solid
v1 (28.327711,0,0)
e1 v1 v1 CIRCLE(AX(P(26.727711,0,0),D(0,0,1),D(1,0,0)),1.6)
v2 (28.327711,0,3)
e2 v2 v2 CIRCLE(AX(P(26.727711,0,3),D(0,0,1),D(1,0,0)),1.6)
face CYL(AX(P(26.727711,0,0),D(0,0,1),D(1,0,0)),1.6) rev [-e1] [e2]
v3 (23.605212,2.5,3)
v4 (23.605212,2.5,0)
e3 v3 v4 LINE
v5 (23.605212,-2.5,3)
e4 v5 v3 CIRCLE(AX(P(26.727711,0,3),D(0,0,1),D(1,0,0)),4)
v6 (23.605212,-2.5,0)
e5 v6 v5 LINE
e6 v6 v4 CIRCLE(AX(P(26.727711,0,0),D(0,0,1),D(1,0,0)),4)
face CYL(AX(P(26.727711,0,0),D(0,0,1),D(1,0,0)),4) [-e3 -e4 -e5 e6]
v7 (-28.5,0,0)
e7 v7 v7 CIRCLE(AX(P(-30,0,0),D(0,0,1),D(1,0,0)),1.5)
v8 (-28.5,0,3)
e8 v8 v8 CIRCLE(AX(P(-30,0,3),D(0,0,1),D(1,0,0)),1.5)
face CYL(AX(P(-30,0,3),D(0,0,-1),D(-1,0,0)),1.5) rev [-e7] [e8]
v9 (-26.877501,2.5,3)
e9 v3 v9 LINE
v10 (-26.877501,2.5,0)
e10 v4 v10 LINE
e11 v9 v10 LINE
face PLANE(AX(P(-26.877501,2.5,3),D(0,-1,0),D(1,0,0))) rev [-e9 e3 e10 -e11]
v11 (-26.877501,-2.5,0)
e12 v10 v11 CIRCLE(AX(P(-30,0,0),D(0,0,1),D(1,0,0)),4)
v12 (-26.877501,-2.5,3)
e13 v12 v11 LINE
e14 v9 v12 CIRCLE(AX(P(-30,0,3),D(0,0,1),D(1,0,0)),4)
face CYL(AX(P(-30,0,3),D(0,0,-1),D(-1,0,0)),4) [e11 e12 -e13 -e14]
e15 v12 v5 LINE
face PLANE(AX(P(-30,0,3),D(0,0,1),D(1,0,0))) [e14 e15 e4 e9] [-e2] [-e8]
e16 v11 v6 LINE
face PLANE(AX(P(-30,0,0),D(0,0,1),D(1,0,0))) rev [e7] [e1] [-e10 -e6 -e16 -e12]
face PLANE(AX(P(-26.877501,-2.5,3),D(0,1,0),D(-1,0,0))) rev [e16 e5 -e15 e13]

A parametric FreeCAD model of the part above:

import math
import FreeCAD as App
import Part
import Sketcher
from FreeCAD import Vector

doc = App.newDocument("Part")
body = doc.addObject("PartDesign::Body", "Body")

# Sketch on XY plane
sketch1 = body.newObject("Sketcher::SketchObject", "Sketch")
sketch1.AttachmentSupport = (doc.getObject("XY_Plane"), [""])
sketch1.MapMode = "FlatFace"
sketch1.addGeometry(Part.LineSegment(Vector(-26.9, -2.5, 0), Vector(30, -2.5, 0)), False)
sketch1.addGeometry(Part.LineSegment(Vector(30, -2.5, 0), Vector(30, 2.5, 0)), False)
sketch1.addGeometry(Part.LineSegment(Vector(30, 2.5, 0), Vector(-26.9, 2.5, 0)), False)
sketch1.addGeometry(Part.ArcOfCircle(Part.Circle(Vector(-30, 0, 0), Vector(0, 0, 1), 4), math.radians(39), math.radians(321)), False)
sketch1.addGeometry(Part.Circle(Vector(-30, 0, 0), Vector(0, 0, 1), 1.5), False)
sketch1.addConstraint(Sketcher.Constraint("Coincident", 0, 2, 1, 1))
sketch1.addConstraint(Sketcher.Constraint("Coincident", 1, 2, 2, 1))
sketch1.addConstraint(Sketcher.Constraint("Coincident", 2, 2, 3, 1))
sketch1.addConstraint(Sketcher.Constraint("Coincident", 3, 2, 0, 1))
sketch1.addConstraint(Sketcher.Constraint("Horizontal", 0))
sketch1.addConstraint(Sketcher.Constraint("Vertical", 1))
sketch1.addConstraint(Sketcher.Constraint("Horizontal", 2))
sketch1.addConstraint(Sketcher.Constraint("Coincident", 4, 3, 3, 3))
sketch1.addConstraint(Sketcher.Constraint("Symmetric", 2, 2, 3, 2, -1))
sketch1.addConstraint(Sketcher.Constraint("Diameter", 4, 3.0))
sketch1.addConstraint(Sketcher.Constraint("Radius", 3, 4.0))
sketch1.addConstraint(Sketcher.Constraint("DistanceY", 1, 1, 1, 2, 5.0))
sketch1.addConstraint(Sketcher.Constraint("DistanceX", 3, 3, -1, 1, 30.0))
sketch1.addConstraint(Sketcher.Constraint("DistanceX", -1, 1, 0, 2, 30.0))
pad1 = body.newObject("PartDesign::Pad", "Pad")
pad1.Profile = sketch1
pad1.Length = 3

# Sketch on XY plane
sketch2 = body.newObject("Sketcher::SketchObject", "Sketch001")
sketch2.AttachmentSupport = (doc.getObject("XY_Plane"), [""])
sketch2.MapMode = "FlatFace"
sketch2.AttachmentOffset = App.Placement(Vector(0, 0, 3), App.Rotation())
sketch2.addGeometry(Part.Circle(Vector(26.7, 0, 0), Vector(0, 0, 1), 1.6), False)
sketch2.addConstraint(Sketcher.Constraint("PointOnObject", 0, 3, -1))
sketch2.addConstraint(Sketcher.Constraint("Diameter", 0, 3.2))
sketch2.addConstraint(Sketcher.Constraint("DistanceX", -1, 1, 0, 3, 26.727711))
pocket1 = body.newObject("PartDesign::Pocket", "Pocket")
pocket1.Profile = sketch2
pocket1.Length = 3

# Sketch on XY plane
sketch3 = body.newObject("Sketcher::SketchObject", "Sketch002")
sketch3.AttachmentSupport = (doc.getObject("XY_Plane"), [""])
sketch3.MapMode = "FlatFace"
sketch3.AttachmentOffset = App.Placement(Vector(0, 0, 3), App.Rotation())
sketch3.addGeometry(Part.Circle(Vector(26.7, 0, 0), Vector(0, 0, 1), 4), False)
sketch3.addGeometry(Part.Circle(Vector(26.7, 0, 0), Vector(0, 0, 1), 1.6), False)
sketch3.addConstraint(Sketcher.Constraint("Coincident", 1, 3, 0, 3))
sketch3.addConstraint(Sketcher.Constraint("PointOnObject", 0, 3, -1))
sketch3.addConstraint(Sketcher.Constraint("Diameter", 0, 8.0))
sketch3.addConstraint(Sketcher.Constraint("Diameter", 1, 3.2))
sketch3.addConstraint(Sketcher.Constraint("DistanceX", -1, 1, 0, 3, 26.727711))
pad2 = body.newObject("PartDesign::Pad", "Pad001")
pad2.Profile = sketch3
pad2.Length = 3
pad2.Reversed = True

# Sketch on XY plane
sketch4 = body.newObject("Sketcher::SketchObject", "Sketch003")
sketch4.AttachmentSupport = (doc.getObject("XY_Plane"), [""])
sketch4.MapMode = "FlatFace"
sketch4.AttachmentOffset = App.Placement(Vector(0, 0, 3), App.Rotation())
sketch4.addGeometry(Part.LineSegment(Vector(30, 2.5, 0), Vector(29.85, 2.5, 0)), False)
sketch4.addGeometry(Part.ArcOfCircle(Part.Circle(Vector(26.73, 0, 0), Vector(0, 0, 1), 4), math.radians(35.11), math.radians(38.68)), False)
sketch4.addGeometry(Part.LineSegment(Vector(30, 2.3, 0), Vector(30, 2.5, 0)), False)
sketch4.addGeometry(Part.LineSegment(Vector(30, -2.5, 0), Vector(30, -2.3, 0)), False)
sketch4.addGeometry(Part.ArcOfCircle(Part.Circle(Vector(26.73, 0, 0), Vector(0, 0, 1), 4), math.radians(-38.68), math.radians(-35.11)), False)
sketch4.addGeometry(Part.LineSegment(Vector(29.85, -2.5, 0), Vector(30, -2.5, 0)), False)
sketch4.addConstraint(Sketcher.Constraint("Coincident", 0, 2, 1, 2))
sketch4.addConstraint(Sketcher.Constraint("Coincident", 1, 1, 2, 1))
sketch4.addConstraint(Sketcher.Constraint("Coincident", 2, 2, 0, 1))
sketch4.addConstraint(Sketcher.Constraint("Coincident", 3, 2, 4, 2))
sketch4.addConstraint(Sketcher.Constraint("Coincident", 4, 1, 5, 1))
sketch4.addConstraint(Sketcher.Constraint("Coincident", 5, 2, 3, 1))
sketch4.addConstraint(Sketcher.Constraint("Horizontal", 0))
sketch4.addConstraint(Sketcher.Constraint("Vertical", 2))
sketch4.addConstraint(Sketcher.Constraint("Vertical", 3))
sketch4.addConstraint(Sketcher.Constraint("Horizontal", 5))
sketch4.addConstraint(Sketcher.Constraint("Coincident", 4, 3, 1, 3))
sketch4.addConstraint(Sketcher.Constraint("Equal", 1, 4))
sketch4.addConstraint(Sketcher.Constraint("Symmetric", 1, 1, 3, 2, -1))
sketch4.addConstraint(Sketcher.Constraint("Vertical", 0, 2, 4, 1))
sketch4.addConstraint(Sketcher.Constraint("Radius", 1, 4.000001))
sketch4.addConstraint(Sketcher.Constraint("DistanceX", -1, 1, 1, 1, 30.0))
sketch4.addConstraint(Sketcher.Constraint("DistanceY", 4, 1, 0, 2, 5.0))
sketch4.addConstraint(Sketcher.Constraint("DistanceX", 0, 2, 0, 1, 0.14979))
pocket2 = body.newObject("PartDesign::Pocket", "Pocket001")
pocket2.Profile = sketch4
pocket2.Length = 3

doc.recompute()
